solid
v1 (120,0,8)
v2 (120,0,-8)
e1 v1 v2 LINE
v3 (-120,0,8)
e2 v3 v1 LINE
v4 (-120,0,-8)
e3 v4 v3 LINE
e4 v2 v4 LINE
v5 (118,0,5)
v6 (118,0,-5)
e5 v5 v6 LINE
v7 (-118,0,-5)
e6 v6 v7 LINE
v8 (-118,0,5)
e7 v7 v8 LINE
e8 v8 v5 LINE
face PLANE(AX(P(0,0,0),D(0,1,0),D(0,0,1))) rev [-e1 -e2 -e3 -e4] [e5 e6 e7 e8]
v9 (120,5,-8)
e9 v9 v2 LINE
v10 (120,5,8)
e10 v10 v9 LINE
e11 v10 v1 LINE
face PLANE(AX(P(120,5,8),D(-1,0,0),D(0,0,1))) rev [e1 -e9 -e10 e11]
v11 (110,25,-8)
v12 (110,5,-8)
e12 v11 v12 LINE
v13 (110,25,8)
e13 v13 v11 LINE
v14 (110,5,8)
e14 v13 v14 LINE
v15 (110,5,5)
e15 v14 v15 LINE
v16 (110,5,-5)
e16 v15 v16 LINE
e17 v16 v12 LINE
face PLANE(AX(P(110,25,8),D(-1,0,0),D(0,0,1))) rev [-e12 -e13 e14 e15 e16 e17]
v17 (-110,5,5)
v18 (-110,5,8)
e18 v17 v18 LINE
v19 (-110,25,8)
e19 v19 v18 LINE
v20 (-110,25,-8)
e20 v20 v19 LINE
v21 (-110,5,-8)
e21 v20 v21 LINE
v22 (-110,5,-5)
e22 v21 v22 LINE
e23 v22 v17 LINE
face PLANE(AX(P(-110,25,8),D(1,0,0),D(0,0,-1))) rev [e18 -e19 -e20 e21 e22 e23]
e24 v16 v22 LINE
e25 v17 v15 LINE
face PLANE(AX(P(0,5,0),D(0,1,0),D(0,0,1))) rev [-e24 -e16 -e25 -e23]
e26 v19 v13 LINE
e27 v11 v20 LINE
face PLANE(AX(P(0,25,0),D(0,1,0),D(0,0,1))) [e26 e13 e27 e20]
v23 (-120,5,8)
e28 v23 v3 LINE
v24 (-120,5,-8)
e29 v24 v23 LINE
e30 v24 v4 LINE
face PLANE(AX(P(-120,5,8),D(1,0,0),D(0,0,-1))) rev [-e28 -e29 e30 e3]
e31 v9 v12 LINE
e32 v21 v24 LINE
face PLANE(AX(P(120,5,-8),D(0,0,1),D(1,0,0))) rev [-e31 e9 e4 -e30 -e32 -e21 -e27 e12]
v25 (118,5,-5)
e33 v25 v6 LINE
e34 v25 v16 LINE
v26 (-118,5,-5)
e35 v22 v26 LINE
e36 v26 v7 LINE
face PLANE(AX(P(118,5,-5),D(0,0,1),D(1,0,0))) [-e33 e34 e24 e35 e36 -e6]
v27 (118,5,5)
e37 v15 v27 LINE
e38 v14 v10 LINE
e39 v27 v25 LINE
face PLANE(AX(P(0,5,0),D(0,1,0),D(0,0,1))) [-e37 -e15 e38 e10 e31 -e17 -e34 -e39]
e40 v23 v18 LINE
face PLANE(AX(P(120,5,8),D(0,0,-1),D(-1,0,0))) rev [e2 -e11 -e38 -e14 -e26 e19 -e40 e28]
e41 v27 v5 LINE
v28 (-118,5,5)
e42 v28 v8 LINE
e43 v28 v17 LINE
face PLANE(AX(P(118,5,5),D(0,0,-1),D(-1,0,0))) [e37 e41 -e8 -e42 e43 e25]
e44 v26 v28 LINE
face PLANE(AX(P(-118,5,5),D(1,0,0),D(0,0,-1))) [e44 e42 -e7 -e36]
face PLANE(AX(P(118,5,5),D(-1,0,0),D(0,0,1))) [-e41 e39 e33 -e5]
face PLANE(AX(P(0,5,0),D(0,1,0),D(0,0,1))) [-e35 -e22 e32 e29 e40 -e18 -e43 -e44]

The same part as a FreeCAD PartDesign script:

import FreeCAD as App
import Part
import Sketcher
from FreeCAD import Vector
Q = App.Units.Quantity


def add_polygon(sketch, points):
    """Adds a closed chain of lines whose ends are joined by coincident constraints."""
    first, n = sketch.GeometryCount, len(points)
    for a, b in zip(points, points[1:] + points[:1]):
        sketch.addGeometry(Part.LineSegment(App.Vector(*a, 0), App.Vector(*b, 0)), False)
    for i in range(n):
        sketch.addConstraint(Sketcher.Constraint("Coincident", first + i, 2, first + (i + 1) % n, 1))

doc = App.newDocument("Part")
body = doc.addObject("PartDesign::Body", "Body")

# Sketch on XZ plane
sketch1 = body.newObject("Sketcher::SketchObject", "Sketch")
sketch1.AttachmentSupport = (doc.getObject("XZ_Plane"), [""])
sketch1.MapMode = "FlatFace"
add_polygon(sketch1, [(-120, -8), (-120, 8), (120, 8), (120, -8)])  # lines 0-3
sketch1.addConstraint([
    Sketcher.Constraint("Vertical", 0),
    Sketcher.Constraint("Horizontal", 1),
    Sketcher.Constraint("Vertical", 2),
    Sketcher.Constraint("Horizontal", 3),
    Sketcher.Constraint("Symmetric", 0, 2, 2, 2, -1, 1),
    Sketcher.Constraint("DistanceX", 1, 1, 1, 2, Q("240 mm")),
    Sketcher.Constraint("DistanceY", 0, 1, 0, 2, Q("16 mm")),
])
pad1 = body.newObject("PartDesign::Pad", "Pad")
pad1.Profile = sketch1
pad1.Length = 5
pad1.Reversed = True

# Sketch on XZ plane
sketch2 = body.newObject("Sketcher::SketchObject", "Sketch001")
sketch2.AttachmentSupport = (doc.getObject("XZ_Plane"), [""])
sketch2.MapMode = "FlatFace"
add_polygon(sketch2, [(-118, -5), (-118, 5), (118, 5), (118, -5)])  # lines 0-3
sketch2.addConstraint([
    Sketcher.Constraint("Vertical", 0),
    Sketcher.Constraint("Horizontal", 1),
    Sketcher.Constraint("Vertical", 2),
    Sketcher.Constraint("Horizontal", 3),
    Sketcher.Constraint("Symmetric", 0, 2, 2, 2, -1, 1),
    Sketcher.Constraint("DistanceX", 1, 1, 1, 2, Q("236 mm")),
    Sketcher.Constraint("DistanceY", 0, 1, 0, 2, Q("10 mm")),
])
pocket1 = body.newObject("PartDesign::Pocket", "Pocket")
pocket1.Profile = sketch2
pocket1.Length = 5

# Sketch on XZ plane
sketch3 = body.newObject("Sketcher::SketchObject", "Sketch002")
sketch3.AttachmentSupport = (doc.getObject("XZ_Plane"), [""])
sketch3.MapMode = "FlatFace"
sketch3.AttachmentOffset = App.Placement(Vector(0, 0, -5), App.Rotation())
add_polygon(sketch3, [(-110, -8), (-110, 8), (110, 8), (110, -8)])  # lines 0-3
sketch3.addConstraint([
    Sketcher.Constraint("Vertical", 0),
    Sketcher.Constraint("Horizontal", 1),
    Sketcher.Constraint("Vertical", 2),
    Sketcher.Constraint("Horizontal", 3),
    Sketcher.Constraint("Symmetric", 0, 2, 2, 2, -1, 1),
    Sketcher.Constraint("DistanceX", 1, 1, 1, 2, Q("220 mm")),
    Sketcher.Constraint("DistanceY", 0, 1, 0, 2, Q("16 mm")),
])
pad2 = body.newObject("PartDesign::Pad", "Pad001")
pad2.Profile = sketch3
pad2.Length = 20
pad2.Reversed = True

doc.recompute()
